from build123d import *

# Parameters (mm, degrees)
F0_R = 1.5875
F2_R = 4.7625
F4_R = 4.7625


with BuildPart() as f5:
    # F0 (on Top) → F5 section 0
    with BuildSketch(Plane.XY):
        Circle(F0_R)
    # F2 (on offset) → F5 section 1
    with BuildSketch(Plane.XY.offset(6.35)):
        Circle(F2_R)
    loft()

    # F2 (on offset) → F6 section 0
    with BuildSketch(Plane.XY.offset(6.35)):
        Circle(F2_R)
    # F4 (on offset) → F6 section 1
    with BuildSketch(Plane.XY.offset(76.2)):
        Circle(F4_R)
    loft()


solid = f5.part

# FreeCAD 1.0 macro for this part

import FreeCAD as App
import Part
import Sketcher
Q = App.Units.Quantity

doc = App.newDocument("Part")
params = doc.addObject("Spreadsheet::Sheet", "Params")
for row, (alias, value) in enumerate([
    ("sketch1_diameter", "0.125 in"),
    ("sketch2_diameter", "0.375 in"),
    ("sketch3_diameter", "0.375 in"),
    ("sketch4_diameter", "0.375 in"),
], start=1):
    params.set(f"A{row}", alias)
    params.set(f"B{row}", "=" + value)
    params.setAlias(f"B{row}", alias)

body = doc.addObject("PartDesign::Body", "Body")

sketch1 = doc.addObject("Sketcher::SketchObject", "Sketch")
body.addObject(sketch1)
sketch1.AttachmentSupport = (doc.XY_Plane, [""])
sketch1.MapMode = "FlatFace"
sketch1.addGeometry(Part.Circle(App.Vector(0, 0, 0), App.Vector(0, 0, 1), 1.5875), False)
sketch1.addConstraint([
    Sketcher.Constraint("Coincident", 0, 3, -1, 1),
    Sketcher.Constraint("Diameter", 0, Q("0.125 in")),
])
sketch1.setExpression("Constraints[1]", "Params.sketch1_diameter")

sketch2 = doc.addObject("Sketcher::SketchObject", "Sketch001")
body.addObject(sketch2)
sketch2.AttachmentSupport = (doc.XY_Plane, [""])
sketch2.MapMode = "FlatFace"
sketch2.AttachmentOffset = App.Placement(App.Vector(0, 0, 0.25 * 25.4), App.Rotation())
sketch2.addGeometry(Part.Circle(App.Vector(0, 0, 0), App.Vector(0, 0, 1), 4.7625), False)
sketch2.addConstraint([
    Sketcher.Constraint("Coincident", 0, 3, -1, 1),
    Sketcher.Constraint("Diameter", 0, Q("0.375 in")),
])
sketch2.setExpression("Constraints[1]", "Params.sketch2_diameter")

additiveloft = doc.addObject("PartDesign::AdditiveLoft", "AdditiveLoft")
body.addObject(additiveloft)
additiveloft.Profile = sketch1
additiveloft.Sections = [sketch2]

sketch3 = doc.addObject("Sketcher::SketchObject", "Sketch002")
body.addObject(sketch3)
sketch3.AttachmentSupport = (doc.XY_Plane, [""])
sketch3.MapMode = "FlatFace"
sketch3.AttachmentOffset = App.Placement(App.Vector(0, 0, 0.25 * 25.4), App.Rotation())
sketch3.addGeometry(Part.Circle(App.Vector(0, 0, 0), App.Vector(0, 0, 1), 4.7625), False)
sketch3.addConstraint([
    Sketcher.Constraint("Coincident", 0, 3, -1, 1),
    Sketcher.Constraint("Diameter", 0, Q("0.375 in")),
])
sketch3.setExpression("Constraints[1]", "Params.sketch3_diameter")

sketch4 = doc.addObject("Sketcher::SketchObject", "Sketch003")
body.addObject(sketch4)
sketch4.AttachmentSupport = (doc.XY_Plane, [""])
sketch4.MapMode = "FlatFace"
sketch4.AttachmentOffset = App.Placement(App.Vector(0, 0, 3 * 25.4), App.Rotation())
sketch4.addGeometry(Part.Circle(App.Vector(0, 0, 0), App.Vector(0, 0, 1), 4.7625), False)
sketch4.addConstraint([
    Sketcher.Constraint("Coincident", 0, 3, -1, 1),
    Sketcher.Constraint("Diameter", 0, Q("0.375 in")),
])
sketch4.setExpression("Constraints[1]", "Params.sketch4_diameter")

additiveloft2 = doc.addObject("PartDesign::AdditiveLoft", "AdditiveLoft001")
body.addObject(additiveloft2)
additiveloft2.Profile = sketch3
additiveloft2.Sections = [sketch4]

doc.recompute()
